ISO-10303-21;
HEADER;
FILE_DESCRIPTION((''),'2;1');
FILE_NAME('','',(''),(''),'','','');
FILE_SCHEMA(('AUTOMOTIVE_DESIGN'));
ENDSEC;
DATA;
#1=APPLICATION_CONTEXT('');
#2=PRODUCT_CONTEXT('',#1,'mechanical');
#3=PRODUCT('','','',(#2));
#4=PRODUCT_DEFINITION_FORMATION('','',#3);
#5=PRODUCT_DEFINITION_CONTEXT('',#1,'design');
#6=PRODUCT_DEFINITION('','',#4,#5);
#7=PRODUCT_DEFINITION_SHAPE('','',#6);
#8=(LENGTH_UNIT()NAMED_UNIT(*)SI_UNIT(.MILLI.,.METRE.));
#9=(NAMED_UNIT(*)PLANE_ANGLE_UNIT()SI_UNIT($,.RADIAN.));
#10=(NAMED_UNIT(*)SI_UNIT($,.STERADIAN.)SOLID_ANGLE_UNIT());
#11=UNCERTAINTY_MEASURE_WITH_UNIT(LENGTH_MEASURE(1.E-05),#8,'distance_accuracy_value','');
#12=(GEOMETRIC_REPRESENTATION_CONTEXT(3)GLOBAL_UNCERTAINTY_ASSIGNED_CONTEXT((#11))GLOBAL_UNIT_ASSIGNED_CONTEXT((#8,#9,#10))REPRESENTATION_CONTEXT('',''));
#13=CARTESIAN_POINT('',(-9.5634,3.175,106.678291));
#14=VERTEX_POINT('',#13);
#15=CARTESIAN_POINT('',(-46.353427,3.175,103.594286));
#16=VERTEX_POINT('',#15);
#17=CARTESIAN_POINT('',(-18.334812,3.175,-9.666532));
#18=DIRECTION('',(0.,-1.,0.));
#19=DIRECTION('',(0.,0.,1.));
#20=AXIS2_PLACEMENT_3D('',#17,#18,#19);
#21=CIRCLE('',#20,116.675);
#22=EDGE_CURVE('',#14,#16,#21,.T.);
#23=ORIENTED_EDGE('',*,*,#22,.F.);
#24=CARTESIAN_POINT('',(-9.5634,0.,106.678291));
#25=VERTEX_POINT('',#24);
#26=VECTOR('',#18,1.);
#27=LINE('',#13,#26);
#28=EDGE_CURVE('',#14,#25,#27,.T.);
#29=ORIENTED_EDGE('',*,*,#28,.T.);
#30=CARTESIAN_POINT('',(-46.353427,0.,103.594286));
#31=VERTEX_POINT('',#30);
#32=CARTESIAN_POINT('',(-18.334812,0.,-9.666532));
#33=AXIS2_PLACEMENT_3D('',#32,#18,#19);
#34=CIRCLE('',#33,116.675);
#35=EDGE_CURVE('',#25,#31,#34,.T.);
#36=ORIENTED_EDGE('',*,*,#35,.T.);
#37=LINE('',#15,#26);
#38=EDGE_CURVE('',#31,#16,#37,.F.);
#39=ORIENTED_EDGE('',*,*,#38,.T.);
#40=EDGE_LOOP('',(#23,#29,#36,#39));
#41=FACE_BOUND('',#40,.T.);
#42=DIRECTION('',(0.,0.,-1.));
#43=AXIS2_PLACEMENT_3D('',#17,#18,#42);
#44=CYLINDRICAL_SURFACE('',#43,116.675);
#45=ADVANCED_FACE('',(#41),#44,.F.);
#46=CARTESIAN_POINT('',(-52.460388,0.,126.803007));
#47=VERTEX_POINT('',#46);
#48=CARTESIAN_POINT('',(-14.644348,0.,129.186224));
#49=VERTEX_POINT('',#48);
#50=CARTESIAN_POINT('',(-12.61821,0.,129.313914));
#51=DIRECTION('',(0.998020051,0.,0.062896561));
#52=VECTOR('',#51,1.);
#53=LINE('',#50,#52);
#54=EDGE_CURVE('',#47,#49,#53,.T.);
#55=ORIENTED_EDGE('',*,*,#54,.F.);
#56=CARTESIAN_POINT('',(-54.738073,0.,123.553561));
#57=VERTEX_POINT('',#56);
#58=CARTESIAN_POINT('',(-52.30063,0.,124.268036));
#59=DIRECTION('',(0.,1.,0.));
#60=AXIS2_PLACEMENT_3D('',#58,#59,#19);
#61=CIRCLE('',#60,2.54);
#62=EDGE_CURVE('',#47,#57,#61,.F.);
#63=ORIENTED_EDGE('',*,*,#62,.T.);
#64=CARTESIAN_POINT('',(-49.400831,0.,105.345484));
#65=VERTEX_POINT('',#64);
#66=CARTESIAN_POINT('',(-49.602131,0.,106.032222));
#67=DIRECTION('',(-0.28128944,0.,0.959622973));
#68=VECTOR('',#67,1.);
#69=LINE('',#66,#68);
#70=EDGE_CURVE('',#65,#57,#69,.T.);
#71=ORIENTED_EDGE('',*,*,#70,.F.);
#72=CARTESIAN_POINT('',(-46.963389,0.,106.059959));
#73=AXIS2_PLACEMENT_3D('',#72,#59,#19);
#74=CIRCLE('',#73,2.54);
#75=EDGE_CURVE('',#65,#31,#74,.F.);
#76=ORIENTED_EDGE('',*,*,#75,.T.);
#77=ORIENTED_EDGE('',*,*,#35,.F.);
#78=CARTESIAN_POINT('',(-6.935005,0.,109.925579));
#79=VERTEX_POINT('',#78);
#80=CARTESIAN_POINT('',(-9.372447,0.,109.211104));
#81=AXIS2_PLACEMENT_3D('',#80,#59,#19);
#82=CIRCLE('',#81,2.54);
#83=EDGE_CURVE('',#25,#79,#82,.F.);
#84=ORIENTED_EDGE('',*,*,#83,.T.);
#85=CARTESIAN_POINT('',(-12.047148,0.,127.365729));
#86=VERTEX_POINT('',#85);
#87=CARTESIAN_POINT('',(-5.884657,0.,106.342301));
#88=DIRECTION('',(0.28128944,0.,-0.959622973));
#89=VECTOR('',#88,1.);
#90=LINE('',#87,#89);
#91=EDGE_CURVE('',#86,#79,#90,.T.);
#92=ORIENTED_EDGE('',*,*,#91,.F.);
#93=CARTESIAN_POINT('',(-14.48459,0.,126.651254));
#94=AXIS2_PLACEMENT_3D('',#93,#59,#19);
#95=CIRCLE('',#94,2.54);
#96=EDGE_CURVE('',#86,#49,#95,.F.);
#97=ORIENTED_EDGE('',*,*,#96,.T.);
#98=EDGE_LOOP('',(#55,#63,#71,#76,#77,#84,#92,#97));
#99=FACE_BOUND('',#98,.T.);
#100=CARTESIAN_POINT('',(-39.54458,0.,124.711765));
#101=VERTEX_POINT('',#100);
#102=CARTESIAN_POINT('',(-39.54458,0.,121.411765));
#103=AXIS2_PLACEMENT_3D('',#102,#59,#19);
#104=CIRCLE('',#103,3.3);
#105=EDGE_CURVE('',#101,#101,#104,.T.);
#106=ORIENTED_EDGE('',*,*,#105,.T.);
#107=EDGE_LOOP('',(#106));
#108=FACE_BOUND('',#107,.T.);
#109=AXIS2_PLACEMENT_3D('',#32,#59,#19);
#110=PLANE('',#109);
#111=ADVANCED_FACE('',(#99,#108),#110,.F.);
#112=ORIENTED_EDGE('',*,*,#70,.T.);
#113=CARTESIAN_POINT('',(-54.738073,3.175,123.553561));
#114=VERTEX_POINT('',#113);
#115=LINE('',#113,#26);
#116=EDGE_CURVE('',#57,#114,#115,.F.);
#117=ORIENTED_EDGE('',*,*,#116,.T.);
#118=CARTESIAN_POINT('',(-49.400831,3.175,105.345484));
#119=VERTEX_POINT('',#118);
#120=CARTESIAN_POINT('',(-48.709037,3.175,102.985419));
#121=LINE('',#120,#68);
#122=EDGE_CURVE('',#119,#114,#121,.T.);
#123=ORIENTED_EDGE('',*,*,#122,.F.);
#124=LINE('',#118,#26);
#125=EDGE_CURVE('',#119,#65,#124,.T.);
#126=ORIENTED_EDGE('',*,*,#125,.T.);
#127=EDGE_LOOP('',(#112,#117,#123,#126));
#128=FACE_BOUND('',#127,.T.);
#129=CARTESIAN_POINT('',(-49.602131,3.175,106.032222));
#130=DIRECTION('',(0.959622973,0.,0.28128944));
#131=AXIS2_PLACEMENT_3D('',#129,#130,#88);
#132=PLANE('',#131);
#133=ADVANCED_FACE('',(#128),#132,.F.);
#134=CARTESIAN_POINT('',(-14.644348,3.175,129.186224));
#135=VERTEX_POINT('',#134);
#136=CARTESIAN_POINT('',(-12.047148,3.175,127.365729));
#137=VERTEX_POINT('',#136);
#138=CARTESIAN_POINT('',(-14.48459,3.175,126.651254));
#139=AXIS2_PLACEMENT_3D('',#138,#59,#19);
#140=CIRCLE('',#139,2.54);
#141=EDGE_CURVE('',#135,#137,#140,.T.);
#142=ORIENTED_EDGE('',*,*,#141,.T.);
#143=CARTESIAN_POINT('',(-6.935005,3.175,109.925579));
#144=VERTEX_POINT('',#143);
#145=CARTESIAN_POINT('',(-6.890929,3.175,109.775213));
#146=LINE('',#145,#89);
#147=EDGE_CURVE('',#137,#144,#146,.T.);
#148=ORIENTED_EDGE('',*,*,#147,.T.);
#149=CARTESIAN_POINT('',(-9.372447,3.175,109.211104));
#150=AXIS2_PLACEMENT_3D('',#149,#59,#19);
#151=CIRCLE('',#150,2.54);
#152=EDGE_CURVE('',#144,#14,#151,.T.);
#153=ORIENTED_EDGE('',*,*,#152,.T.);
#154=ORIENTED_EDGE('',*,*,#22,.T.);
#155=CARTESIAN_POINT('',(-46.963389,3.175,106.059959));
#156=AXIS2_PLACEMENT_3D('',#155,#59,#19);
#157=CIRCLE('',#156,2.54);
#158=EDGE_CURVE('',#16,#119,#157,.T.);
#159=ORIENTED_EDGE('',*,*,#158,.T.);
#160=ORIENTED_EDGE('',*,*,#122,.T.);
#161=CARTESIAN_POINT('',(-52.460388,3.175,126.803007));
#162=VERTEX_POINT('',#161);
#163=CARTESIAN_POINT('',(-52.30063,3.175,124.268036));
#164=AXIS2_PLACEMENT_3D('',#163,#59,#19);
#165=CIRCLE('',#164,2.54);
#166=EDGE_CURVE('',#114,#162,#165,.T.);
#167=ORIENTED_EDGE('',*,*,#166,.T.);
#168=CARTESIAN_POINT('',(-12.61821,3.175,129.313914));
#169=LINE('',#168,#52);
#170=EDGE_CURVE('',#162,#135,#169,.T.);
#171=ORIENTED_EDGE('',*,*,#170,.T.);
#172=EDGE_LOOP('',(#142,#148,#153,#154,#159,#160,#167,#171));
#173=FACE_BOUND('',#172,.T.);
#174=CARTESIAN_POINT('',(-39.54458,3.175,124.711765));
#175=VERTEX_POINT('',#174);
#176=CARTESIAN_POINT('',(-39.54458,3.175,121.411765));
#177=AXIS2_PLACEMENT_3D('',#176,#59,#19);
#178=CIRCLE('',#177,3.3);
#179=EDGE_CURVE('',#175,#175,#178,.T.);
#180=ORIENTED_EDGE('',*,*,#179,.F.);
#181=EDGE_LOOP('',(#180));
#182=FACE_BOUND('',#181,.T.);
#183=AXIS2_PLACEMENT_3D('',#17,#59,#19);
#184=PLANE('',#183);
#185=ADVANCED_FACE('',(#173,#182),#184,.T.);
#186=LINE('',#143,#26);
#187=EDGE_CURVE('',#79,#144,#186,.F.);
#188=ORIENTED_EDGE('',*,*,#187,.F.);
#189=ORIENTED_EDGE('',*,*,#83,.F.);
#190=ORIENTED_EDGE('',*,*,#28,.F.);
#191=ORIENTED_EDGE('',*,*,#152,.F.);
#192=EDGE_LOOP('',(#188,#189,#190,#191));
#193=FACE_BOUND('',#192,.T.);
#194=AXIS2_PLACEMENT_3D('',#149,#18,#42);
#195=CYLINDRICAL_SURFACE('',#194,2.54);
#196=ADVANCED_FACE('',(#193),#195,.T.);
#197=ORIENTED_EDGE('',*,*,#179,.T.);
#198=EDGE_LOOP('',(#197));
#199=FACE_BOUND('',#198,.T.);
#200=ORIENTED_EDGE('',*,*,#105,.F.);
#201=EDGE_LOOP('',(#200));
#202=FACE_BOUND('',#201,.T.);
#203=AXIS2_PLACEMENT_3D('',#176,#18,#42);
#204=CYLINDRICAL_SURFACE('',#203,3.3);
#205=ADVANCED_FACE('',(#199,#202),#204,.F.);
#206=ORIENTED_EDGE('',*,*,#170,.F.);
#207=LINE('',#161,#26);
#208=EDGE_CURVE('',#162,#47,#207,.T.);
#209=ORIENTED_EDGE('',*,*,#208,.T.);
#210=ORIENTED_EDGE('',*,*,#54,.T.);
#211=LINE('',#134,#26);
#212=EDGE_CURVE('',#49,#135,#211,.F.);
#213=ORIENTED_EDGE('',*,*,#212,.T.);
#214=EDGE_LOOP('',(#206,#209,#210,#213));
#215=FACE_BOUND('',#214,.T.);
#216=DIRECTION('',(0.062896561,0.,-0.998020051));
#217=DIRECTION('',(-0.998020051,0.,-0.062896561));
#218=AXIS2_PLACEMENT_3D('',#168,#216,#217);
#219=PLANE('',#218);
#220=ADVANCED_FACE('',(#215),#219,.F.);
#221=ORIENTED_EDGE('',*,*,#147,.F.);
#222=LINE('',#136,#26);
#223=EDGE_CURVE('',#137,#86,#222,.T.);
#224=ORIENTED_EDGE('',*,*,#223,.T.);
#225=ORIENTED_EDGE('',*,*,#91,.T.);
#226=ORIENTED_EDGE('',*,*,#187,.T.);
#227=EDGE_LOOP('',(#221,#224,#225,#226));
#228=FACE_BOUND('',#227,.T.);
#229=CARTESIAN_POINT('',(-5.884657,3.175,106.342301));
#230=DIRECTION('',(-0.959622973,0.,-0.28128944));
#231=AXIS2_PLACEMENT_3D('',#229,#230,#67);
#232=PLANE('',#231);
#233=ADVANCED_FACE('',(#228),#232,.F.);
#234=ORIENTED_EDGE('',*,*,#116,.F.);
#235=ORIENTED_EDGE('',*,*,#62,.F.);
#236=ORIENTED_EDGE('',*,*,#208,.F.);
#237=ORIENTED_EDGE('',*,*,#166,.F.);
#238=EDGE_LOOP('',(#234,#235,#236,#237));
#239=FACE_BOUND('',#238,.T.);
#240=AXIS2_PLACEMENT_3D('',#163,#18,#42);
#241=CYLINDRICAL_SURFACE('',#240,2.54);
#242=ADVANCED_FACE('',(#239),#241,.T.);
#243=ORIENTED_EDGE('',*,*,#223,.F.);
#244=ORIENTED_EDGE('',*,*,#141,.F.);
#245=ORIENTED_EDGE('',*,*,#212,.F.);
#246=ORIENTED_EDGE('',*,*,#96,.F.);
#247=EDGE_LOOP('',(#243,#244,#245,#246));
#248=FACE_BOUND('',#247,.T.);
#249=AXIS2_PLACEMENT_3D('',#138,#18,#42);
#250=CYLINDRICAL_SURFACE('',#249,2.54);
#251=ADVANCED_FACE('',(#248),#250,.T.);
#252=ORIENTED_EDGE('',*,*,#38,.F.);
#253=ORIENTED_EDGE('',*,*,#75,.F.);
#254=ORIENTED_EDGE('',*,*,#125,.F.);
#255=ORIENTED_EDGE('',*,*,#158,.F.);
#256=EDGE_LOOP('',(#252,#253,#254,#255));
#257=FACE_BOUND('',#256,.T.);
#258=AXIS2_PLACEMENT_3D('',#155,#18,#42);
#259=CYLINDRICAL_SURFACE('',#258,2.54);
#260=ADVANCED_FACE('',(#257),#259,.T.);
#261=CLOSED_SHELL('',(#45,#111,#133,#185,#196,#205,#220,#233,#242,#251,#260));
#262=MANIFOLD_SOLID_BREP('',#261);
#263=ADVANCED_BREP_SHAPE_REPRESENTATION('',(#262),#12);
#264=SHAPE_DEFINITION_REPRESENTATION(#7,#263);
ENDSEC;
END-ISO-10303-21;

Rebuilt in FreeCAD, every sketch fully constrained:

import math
import FreeCAD as App
import Part
import Sketcher
Q = App.Units.Quantity


def edges_at(feature, points):
    """Names of the edges that pass closest to the given points."""
    edges = feature.Shape.Edges
    near = lambda p: min(range(len(edges)), key=lambda i: edges[i].distToShape(Part.Vertex(*p))[0])
    return sorted({f"Edge{near(p) + 1}" for p in points})

doc = App.newDocument("Part")
body = doc.addObject("PartDesign::Body", "Body")

sketch1 = body.newObject("Sketcher::SketchObject", "Sketch")
sketch1.AttachmentSupport = (doc.getObject("XZ_Plane"), [""])
sketch1.MapMode = "FlatFace"
sketch1.addGeometry(Part.LineSegment(App.Vector(-48.709037, 102.985419, 0), App.Vector(-49.602131, 106.032222, 0)), False)
sketch1.addGeometry(Part.LineSegment(App.Vector(-49.602131, 106.032222, 0), App.Vector(-55.631977, 126.603129, 0)), False)
sketch1.addGeometry(Part.LineSegment(App.Vector(-55.631977, 126.603129, 0), App.Vector(-12.61821, 129.313914, 0)), False)
sketch1.addGeometry(Part.LineSegment(App.Vector(-12.61821, 129.313914, 0), App.Vector(-6.890929, 109.775213, 0)), False)
sketch1.addGeometry(Part.LineSegment(App.Vector(-6.890929, 109.775213, 0), App.Vector(-5.884657, 106.342301, 0)), False)
sketch1.addGeometry(Part.ArcOfCircle(Part.Circle(App.Vector(-18.334812, -9.666532, 0), App.Vector(0, 0, 1), 116.675), math.radians(83.87442), math.radians(105.089757)), False)
sketch1.addGeometry(Part.Circle(App.Vector(-39.54458, 121.411765, 0), App.Vector(0, 0, 1), 3.3), False)
sketch1.addConstraint(Sketcher.Constraint("Coincident", 0, 2, 1, 1))
sketch1.addConstraint(Sketcher.Constraint("Coincident", 1, 2, 2, 1))
sketch1.addConstraint(Sketcher.Constraint("Coincident", 2, 2, 3, 1))
sketch1.addConstraint(Sketcher.Constraint("Coincident", 3, 2, 4, 1))
sketch1.addConstraint(Sketcher.Constraint("Coincident", 4, 2, 5, 1))
sketch1.addConstraint(Sketcher.Constraint("Coincident", 5, 2, 0, 1))
sketch1.addConstraint(Sketcher.Constraint("Parallel", 0, 1))
sketch1.addConstraint(Sketcher.Constraint("Parallel", 1, 3))
sketch1.addConstraint(Sketcher.Constraint("Parallel", 3, 4))
sketch1.addConstraint(Sketcher.Constraint("Diameter", 6, Q("6.6 mm")))
sketch1.addConstraint(Sketcher.Constraint("Radius", 5, Q("116.675 mm")))
sketch1.addConstraint(Sketcher.Constraint("Distance", 0, Q("0.125 in")))
sketch1.addConstraint(Sketcher.Constraint("Distance", 2, Q("43.099101 mm")))
sketch1.addConstraint(Sketcher.Constraint("DistanceY", -1, 1, 4, 2, Q("106.342301 mm")))
sketch1.addConstraint(Sketcher.Constraint("DistanceY", 3, 2, 2, 2, Q("19.538701 mm")))
sketch1.addConstraint(Sketcher.Constraint("DistanceX", 0, 2, 3, 2, Q("42.711202 mm")))
sketch1.addConstraint(Sketcher.Constraint("Distance", 3, Q("20.36081 mm")))
sketch1.addConstraint(Sketcher.Constraint("DistanceX", 5, 3, -1, 1, Q("18.334812 mm")))
sketch1.addConstraint(Sketcher.Constraint("DistanceY", 5, 3, -1, 1, Q("9.666532 mm")))
sketch1.addConstraint(Sketcher.Constraint("DistanceX", 6, 3, -1, 1, Q("39.54458 mm")))
sketch1.addConstraint(Sketcher.Constraint("DistanceX", 0, 2, -1, 1, Q("49.602131 mm")))
sketch1.addConstraint(Sketcher.Constraint("DistanceY", 6, 3, 2, 2, Q("7.90215 mm")))
pad1 = body.newObject("PartDesign::Pad", "Pad")
pad1.Profile = sketch1
pad1.Length = Q("0.125 in")
pad1.Reversed = True
doc.recompute()

fillet = body.newObject("PartDesign::Fillet", "Fillet")
fillet.Base = (pad1, edges_at(pad1, [
    (-5.885, 1.587, 106.342),
    (-12.618, 1.587, 129.314),
    (-55.632, 1.587, 126.603),
    (-48.709, 1.587, 102.985),
]))
fillet.Radius = Q("0.1 in")

doc.recompute()
